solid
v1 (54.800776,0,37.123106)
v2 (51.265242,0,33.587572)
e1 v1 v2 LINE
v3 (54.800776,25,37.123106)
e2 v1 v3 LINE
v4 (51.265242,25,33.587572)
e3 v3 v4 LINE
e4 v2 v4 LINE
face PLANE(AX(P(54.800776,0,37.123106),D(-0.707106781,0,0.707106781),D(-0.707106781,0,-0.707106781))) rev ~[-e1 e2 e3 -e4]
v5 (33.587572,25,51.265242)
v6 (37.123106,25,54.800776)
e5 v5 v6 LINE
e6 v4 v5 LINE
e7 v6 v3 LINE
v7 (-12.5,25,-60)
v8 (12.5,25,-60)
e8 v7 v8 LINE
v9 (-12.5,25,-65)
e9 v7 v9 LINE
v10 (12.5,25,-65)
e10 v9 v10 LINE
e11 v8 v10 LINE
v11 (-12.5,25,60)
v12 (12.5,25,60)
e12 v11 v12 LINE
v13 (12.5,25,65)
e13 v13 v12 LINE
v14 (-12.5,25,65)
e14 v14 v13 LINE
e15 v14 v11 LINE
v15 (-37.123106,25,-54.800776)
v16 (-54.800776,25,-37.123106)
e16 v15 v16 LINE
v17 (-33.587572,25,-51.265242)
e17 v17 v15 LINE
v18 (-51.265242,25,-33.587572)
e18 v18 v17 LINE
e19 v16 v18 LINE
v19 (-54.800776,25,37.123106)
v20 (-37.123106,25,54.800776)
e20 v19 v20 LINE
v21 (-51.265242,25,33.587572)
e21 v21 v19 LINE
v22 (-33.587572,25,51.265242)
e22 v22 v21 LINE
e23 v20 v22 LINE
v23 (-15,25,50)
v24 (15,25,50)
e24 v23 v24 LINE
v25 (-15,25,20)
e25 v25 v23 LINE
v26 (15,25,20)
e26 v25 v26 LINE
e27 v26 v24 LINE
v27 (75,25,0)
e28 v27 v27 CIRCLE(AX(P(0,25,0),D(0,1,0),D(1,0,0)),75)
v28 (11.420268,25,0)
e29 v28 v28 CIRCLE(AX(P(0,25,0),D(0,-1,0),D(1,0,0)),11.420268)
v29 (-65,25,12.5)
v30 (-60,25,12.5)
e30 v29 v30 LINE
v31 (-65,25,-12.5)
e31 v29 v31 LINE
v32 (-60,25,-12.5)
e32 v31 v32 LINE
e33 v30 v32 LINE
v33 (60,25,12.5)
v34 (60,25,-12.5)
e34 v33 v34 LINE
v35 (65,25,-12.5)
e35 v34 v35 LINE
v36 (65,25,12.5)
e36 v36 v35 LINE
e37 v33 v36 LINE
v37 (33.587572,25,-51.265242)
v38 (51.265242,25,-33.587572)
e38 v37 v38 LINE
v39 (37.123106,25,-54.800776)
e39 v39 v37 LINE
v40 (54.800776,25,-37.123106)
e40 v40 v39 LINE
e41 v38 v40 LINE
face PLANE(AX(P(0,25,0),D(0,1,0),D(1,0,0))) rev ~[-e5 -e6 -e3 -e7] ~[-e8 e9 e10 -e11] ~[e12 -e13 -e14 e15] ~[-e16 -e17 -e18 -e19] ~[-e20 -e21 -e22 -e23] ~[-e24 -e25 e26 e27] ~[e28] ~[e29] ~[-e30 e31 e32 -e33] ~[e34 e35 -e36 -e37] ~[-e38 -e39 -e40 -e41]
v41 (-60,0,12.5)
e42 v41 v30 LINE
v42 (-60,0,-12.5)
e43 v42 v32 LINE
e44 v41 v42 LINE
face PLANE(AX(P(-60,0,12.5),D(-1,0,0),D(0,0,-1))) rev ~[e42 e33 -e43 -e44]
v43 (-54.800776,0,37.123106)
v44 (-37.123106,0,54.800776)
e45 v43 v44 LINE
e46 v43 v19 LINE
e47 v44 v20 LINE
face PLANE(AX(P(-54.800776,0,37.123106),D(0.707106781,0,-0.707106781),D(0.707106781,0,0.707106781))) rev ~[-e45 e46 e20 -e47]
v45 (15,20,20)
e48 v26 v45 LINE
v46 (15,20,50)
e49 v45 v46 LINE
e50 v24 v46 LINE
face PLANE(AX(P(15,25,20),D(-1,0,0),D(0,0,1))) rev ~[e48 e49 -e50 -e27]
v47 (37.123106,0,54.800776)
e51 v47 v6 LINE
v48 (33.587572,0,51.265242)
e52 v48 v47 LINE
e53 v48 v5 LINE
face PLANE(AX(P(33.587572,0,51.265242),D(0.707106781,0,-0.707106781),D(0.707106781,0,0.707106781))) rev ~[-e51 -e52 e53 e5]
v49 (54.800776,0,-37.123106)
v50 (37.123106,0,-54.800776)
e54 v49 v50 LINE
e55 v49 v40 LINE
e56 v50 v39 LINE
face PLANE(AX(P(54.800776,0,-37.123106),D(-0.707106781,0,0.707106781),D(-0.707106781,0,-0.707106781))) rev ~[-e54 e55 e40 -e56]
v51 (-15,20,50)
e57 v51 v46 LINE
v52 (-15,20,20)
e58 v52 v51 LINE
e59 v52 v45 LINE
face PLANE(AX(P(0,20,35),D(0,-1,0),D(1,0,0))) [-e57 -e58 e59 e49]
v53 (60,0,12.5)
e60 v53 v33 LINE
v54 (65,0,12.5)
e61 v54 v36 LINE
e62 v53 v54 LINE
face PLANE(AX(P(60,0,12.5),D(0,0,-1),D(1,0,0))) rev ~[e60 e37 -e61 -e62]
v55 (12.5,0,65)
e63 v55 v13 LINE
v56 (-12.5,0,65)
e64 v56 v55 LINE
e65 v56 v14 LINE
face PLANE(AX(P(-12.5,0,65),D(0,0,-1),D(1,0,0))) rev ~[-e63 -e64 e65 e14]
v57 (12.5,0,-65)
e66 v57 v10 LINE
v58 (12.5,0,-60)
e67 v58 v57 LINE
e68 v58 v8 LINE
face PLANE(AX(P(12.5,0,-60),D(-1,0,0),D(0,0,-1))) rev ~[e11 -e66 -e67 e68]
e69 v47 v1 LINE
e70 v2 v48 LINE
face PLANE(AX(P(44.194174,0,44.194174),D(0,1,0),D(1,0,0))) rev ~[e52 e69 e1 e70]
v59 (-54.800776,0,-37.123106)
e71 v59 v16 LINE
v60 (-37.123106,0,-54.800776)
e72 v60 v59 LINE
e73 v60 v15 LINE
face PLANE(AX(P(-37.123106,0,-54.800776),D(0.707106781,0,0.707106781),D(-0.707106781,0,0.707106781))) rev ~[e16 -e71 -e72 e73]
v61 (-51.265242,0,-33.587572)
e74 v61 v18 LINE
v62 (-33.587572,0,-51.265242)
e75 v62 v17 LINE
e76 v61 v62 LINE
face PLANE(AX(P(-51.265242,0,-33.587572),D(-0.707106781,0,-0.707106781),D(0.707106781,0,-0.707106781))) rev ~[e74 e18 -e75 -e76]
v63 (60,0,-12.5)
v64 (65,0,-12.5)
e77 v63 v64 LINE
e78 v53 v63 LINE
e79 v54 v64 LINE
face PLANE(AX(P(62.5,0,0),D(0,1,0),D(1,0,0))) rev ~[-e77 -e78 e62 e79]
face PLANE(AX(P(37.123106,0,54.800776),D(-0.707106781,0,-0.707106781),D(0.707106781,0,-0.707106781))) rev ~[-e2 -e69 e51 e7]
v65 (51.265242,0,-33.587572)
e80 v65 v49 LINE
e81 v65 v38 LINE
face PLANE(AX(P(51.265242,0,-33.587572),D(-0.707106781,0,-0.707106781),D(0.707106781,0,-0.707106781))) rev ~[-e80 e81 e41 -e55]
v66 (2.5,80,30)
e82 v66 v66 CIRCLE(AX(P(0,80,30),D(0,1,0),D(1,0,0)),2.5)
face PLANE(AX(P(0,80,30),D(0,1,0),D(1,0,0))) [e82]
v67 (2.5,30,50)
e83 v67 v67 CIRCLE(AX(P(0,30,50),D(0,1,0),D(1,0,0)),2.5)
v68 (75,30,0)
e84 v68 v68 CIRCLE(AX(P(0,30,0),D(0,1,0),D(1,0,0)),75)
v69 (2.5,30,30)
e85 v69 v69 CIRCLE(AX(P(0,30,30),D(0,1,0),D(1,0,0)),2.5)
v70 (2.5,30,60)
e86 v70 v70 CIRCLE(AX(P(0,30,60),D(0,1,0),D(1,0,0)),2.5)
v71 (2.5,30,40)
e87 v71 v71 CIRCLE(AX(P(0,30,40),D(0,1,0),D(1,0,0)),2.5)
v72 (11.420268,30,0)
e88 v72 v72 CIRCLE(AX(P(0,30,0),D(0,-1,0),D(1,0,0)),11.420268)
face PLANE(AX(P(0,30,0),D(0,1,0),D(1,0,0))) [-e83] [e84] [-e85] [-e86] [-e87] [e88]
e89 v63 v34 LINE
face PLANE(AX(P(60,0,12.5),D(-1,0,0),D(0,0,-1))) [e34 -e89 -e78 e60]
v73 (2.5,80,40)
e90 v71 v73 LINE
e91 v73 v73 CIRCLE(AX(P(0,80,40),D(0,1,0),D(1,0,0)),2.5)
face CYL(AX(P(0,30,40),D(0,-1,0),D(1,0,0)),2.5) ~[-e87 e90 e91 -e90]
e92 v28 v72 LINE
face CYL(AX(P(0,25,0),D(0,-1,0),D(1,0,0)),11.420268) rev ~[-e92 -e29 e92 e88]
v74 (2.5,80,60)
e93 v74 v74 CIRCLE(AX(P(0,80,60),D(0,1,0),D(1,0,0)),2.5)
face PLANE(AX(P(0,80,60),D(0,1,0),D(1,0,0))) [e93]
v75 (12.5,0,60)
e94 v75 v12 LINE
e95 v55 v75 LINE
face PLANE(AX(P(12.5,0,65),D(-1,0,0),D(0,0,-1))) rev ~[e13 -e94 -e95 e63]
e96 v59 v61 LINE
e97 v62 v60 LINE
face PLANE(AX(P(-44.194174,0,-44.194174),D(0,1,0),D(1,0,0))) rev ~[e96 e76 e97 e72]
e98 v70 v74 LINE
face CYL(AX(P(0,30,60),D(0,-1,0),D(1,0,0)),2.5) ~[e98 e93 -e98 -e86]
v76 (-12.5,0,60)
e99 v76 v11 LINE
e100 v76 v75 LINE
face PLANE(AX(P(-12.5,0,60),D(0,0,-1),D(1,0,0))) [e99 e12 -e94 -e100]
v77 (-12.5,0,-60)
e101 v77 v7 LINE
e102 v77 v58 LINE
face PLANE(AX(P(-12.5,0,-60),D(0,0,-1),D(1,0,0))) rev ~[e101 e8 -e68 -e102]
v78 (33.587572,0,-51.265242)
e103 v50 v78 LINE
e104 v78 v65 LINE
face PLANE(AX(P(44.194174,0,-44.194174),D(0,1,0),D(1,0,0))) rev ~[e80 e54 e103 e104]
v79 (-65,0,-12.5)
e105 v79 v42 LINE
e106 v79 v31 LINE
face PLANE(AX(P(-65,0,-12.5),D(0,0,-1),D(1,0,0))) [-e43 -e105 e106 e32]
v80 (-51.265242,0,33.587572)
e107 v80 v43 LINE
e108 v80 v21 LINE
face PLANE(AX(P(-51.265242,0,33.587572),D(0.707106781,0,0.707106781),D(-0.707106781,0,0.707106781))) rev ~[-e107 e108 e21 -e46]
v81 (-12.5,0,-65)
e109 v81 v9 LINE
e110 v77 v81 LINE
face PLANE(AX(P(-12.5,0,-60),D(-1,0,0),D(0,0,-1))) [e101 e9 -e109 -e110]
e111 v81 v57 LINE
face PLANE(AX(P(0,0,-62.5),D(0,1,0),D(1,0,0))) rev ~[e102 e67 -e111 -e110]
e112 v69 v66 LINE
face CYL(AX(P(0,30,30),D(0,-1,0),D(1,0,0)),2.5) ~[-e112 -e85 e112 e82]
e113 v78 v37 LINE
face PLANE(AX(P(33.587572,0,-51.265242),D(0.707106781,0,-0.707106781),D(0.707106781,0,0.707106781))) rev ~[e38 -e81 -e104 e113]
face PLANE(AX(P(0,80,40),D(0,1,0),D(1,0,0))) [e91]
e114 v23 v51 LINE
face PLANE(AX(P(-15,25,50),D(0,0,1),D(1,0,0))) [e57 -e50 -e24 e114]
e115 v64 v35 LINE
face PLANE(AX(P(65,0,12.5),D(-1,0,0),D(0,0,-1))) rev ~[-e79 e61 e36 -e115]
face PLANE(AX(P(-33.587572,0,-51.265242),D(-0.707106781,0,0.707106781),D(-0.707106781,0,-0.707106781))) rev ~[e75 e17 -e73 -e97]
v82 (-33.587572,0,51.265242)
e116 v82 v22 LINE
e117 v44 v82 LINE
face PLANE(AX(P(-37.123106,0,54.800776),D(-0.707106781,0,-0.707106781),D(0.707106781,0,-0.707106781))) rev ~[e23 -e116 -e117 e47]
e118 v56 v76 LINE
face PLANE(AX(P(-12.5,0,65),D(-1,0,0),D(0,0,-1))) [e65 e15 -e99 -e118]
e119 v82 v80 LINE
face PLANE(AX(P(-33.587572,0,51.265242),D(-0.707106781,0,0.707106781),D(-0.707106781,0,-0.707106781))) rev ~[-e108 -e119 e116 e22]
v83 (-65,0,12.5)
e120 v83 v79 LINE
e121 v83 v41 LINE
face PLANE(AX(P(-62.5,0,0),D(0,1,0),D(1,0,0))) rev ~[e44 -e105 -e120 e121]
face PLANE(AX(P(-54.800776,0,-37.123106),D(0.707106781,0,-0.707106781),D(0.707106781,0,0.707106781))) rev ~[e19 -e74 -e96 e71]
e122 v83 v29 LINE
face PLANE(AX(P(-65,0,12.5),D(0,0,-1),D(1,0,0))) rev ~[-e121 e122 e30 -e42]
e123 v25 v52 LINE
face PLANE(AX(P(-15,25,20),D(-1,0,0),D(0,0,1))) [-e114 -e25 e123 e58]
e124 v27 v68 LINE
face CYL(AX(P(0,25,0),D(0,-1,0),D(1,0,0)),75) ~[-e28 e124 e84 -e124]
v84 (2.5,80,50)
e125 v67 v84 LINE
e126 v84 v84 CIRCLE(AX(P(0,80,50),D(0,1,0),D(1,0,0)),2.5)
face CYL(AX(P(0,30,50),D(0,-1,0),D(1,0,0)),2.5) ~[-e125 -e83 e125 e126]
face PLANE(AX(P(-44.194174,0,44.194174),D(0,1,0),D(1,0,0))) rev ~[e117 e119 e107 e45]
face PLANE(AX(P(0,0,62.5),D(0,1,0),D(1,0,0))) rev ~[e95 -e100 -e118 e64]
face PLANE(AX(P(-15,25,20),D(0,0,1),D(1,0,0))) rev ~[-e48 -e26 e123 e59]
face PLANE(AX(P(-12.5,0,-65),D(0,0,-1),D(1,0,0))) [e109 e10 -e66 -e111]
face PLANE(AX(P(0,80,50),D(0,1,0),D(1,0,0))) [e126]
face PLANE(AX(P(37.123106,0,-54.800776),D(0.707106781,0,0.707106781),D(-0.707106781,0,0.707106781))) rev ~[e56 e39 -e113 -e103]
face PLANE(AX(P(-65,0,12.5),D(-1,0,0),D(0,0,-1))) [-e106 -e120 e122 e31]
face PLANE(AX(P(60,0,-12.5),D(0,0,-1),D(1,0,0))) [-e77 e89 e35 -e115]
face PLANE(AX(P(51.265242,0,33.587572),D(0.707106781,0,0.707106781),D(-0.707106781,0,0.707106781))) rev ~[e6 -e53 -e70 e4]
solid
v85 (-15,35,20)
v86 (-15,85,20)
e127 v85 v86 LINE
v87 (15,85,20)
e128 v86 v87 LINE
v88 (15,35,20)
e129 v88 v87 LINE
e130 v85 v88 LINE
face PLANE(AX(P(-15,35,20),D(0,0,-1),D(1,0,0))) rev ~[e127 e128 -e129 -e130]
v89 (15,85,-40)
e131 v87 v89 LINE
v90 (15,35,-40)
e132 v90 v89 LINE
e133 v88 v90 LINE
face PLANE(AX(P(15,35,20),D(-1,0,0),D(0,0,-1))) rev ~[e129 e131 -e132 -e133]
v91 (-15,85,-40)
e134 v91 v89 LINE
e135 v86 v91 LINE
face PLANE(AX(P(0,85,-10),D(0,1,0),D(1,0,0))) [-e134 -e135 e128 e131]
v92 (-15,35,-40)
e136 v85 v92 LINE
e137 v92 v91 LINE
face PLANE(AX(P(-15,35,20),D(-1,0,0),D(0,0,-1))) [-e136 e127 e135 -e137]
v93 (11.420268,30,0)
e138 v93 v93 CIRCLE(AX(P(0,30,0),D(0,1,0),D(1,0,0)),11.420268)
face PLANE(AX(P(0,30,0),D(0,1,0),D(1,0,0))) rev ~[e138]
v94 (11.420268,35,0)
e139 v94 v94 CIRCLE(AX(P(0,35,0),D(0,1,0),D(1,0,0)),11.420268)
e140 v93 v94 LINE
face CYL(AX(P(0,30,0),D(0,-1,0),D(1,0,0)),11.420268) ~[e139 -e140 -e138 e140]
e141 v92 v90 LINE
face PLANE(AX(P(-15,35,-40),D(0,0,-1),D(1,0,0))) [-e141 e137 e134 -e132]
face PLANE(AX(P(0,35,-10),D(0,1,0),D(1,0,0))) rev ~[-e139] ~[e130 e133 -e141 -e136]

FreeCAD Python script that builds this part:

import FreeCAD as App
import Part
import Sketcher
from FreeCAD import Vector
Q = App.Units.Quantity


def add_polygon(sketch, points):
    """Adds a closed chain of lines whose ends are joined by coincident constraints."""
    first, n = sketch.GeometryCount, len(points)
    for a, b in zip(points, points[1:] + points[:1]):
        sketch.addGeometry(Part.LineSegment(App.Vector(*a, 0), App.Vector(*b, 0)), False)
    for i in range(n):
        sketch.addConstraint(Sketcher.Constraint("Coincident", first + i, 2, first + (i + 1) % n, 1))

doc = App.newDocument("Part")
body = doc.addObject("PartDesign::Body", "Body")

sketch1 = body.newObject("Sketcher::SketchObject", "Sketch")
sketch1.AttachmentSupport = (doc.getObject("XZ_Plane"), [""])
sketch1.MapMode = "FlatFace"
add_polygon(sketch1, [(-37, 55), (-34, 51), (-51, 34), (-55, 37)])
sketch1.addConstraint([
    Sketcher.Constraint("Perpendicular", 0, 1),
    Sketcher.Constraint("Perpendicular", 1, 2),
    Sketcher.Constraint("Perpendicular", 2, 3),
    Sketcher.Constraint("Angle", 0, Q("-45 deg")),
    Sketcher.Constraint("Distance", 0, 5.0),
    Sketcher.Constraint("Distance", 1, 25.0),
    Sketcher.Constraint("DistanceY", -1, 1, 0, 2, 51.265242),
    Sketcher.Constraint("DistanceX", 1, 2, -1, 1, 51.265242),
])
pad1 = body.newObject("PartDesign::Pad", "Pad")
pad1.Profile = sketch1
pad1.Length = 25
pad1.Reversed = True
body2 = doc.addObject("PartDesign::Body", "Body001")

sketch2 = body2.newObject("Sketcher::SketchObject", "Sketch001")
sketch2.AttachmentSupport = (doc.getObject("XZ_Plane001"), [""])
sketch2.MapMode = "FlatFace"
add_polygon(sketch2, [(-55, -37), (-51, -34), (-34, -51), (-37, -55)])
sketch2.addConstraint([
    Sketcher.Constraint("Perpendicular", 0, 1),
    Sketcher.Constraint("Perpendicular", 1, 2),
    Sketcher.Constraint("Perpendicular", 2, 3),
    Sketcher.Constraint("Angle", 0, Q("45 deg")),
    Sketcher.Constraint("Distance", 0, 5.0),
    Sketcher.Constraint("Distance", 1, 25.0),
    Sketcher.Constraint("DistanceX", 0, 2, -1, 1, 51.265242),
    Sketcher.Constraint("DistanceY", 1, 2, -1, 1, 51.265242),
])
pad2 = body2.newObject("PartDesign::Pad", "Pad001")
pad2.Profile = sketch2
pad2.Length = 25
pad2.Reversed = True
body3 = doc.addObject("PartDesign::Body", "Body002")

sketch3 = body3.newObject("Sketcher::SketchObject", "Sketch002")
sketch3.AttachmentSupport = (doc.getObject("XZ_Plane002"), [""])
sketch3.MapMode = "FlatFace"
add_polygon(sketch3, [(-12, -65), (-12, -60), (12, -60), (12, -65)])
sketch3.addConstraint([
    Sketcher.Constraint("Vertical", 0),
    Sketcher.Constraint("Horizontal", 1),
    Sketcher.Constraint("Vertical", 2),
    Sketcher.Constraint("Horizontal", 3),
    Sketcher.Constraint("DistanceX", 1, 1, 1, 2, 25.0),
    Sketcher.Constraint("DistanceY", 0, 1, 0, 2, 5.0),
    Sketcher.Constraint("DistanceY", 0, 2, -1, 1, 60.0),
    Sketcher.Constraint("DistanceX", 0, 2, -1, 1, 12.5),
])
pad3 = body3.newObject("PartDesign::Pad", "Pad002")
pad3.Profile = sketch3
pad3.Length = 25
pad3.Reversed = True
body4 = doc.addObject("PartDesign::Body", "Body003")

sketch4 = body4.newObject("Sketcher::SketchObject", "Sketch003")
sketch4.AttachmentSupport = (doc.getObject("XZ_Plane003"), [""])
sketch4.MapMode = "FlatFace"
add_polygon(sketch4, [(37, -55), (34, -51), (51, -34), (55, -37)])
sketch4.addConstraint([
    Sketcher.Constraint("Perpendicular", 0, 1),
    Sketcher.Constraint("Perpendicular", 1, 2),
    Sketcher.Constraint("Perpendicular", 2, 3),
    Sketcher.Constraint("Angle", 0, Q("135 deg")),
    Sketcher.Constraint("Distance", 0, 5.0),
    Sketcher.Constraint("Distance", 1, 25.0),
    Sketcher.Constraint("DistanceY", 0, 2, -1, 1, 51.265242),
    Sketcher.Constraint("DistanceX", -1, 1, 1, 2, 51.265242),
])
pad4 = body4.newObject("PartDesign::Pad", "Pad003")
pad4.Profile = sketch4
pad4.Length = 25
pad4.Reversed = True
body5 = doc.addObject("PartDesign::Body", "Body004")

sketch5 = body5.newObject("Sketcher::SketchObject", "Sketch004")
sketch5.AttachmentSupport = (doc.getObject("XZ_Plane004"), [""])
sketch5.MapMode = "FlatFace"
add_polygon(sketch5, [(60, -12), (60, 12), (65, 12), (65, -12)])
sketch5.addConstraint([
    Sketcher.Constraint("Vertical", 0),
    Sketcher.Constraint("Horizontal", 1),
    Sketcher.Constraint("Vertical", 2),
    Sketcher.Constraint("Horizontal", 3),
    Sketcher.Constraint("DistanceX", 1, 1, 1, 2, 5.0),
    Sketcher.Constraint("DistanceY", 0, 1, 0, 2, 25.0),
    Sketcher.Constraint("DistanceX", -1, 1, 0, 2, 60.0),
    Sketcher.Constraint("DistanceY", -1, 1, 0, 2, 12.5),
])
pad5 = body5.newObject("PartDesign::Pad", "Pad004")
pad5.Profile = sketch5
pad5.Length = 25
pad5.Reversed = True
body6 = doc.addObject("PartDesign::Body", "Body005")

sketch6 = body6.newObject("Sketcher::SketchObject", "Sketch005")
sketch6.AttachmentSupport = (doc.getObject("XZ_Plane005"), [""])
sketch6.MapMode = "FlatFace"
add_polygon(sketch6, [(55, 37), (51, 34), (34, 51), (37, 55)])
sketch6.addConstraint([
    Sketcher.Constraint("Perpendicular", 0, 1),
    Sketcher.Constraint("Perpendicular", 1, 2),
    Sketcher.Constraint("Perpendicular", 2, 3),
    Sketcher.Constraint("Angle", 0, Q("-135 deg")),
    Sketcher.Constraint("Distance", 0, 5.0),
    Sketcher.Constraint("Distance", 1, 25.0),
    Sketcher.Constraint("DistanceX", -1, 1, 0, 2, 51.265242),
    Sketcher.Constraint("DistanceY", -1, 1, 1, 2, 51.265242),
])
pad6 = body6.newObject("PartDesign::Pad", "Pad005")
pad6.Profile = sketch6
pad6.Length = 25
pad6.Reversed = True
body7 = doc.addObject("PartDesign::Body", "Body006")

sketch7 = body7.newObject("Sketcher::SketchObject", "Sketch006")
sketch7.AttachmentSupport = (doc.getObject("XZ_Plane006"), [""])
sketch7.MapMode = "FlatFace"
add_polygon(sketch7, [(-12, 60), (-12, 65), (12, 65), (12, 60)])
sketch7.addConstraint([
    Sketcher.Constraint("Vertical", 0),
    Sketcher.Constraint("Horizontal", 1),
    Sketcher.Constraint("Vertical", 2),
    Sketcher.Constraint("Horizontal", 3),
    Sketcher.Constraint("DistanceX", 1, 1, 1, 2, 25.0),
    Sketcher.Constraint("DistanceY", 0, 1, 0, 2, 5.0),
    Sketcher.Constraint("DistanceY", -1, 1, 0, 2, 65.0),
    Sketcher.Constraint("DistanceX", 0, 2, -1, 1, 12.5),
])
pad7 = body7.newObject("PartDesign::Pad", "Pad006")
pad7.Profile = sketch7
pad7.Length = 25
pad7.Reversed = True
body8 = doc.addObject("PartDesign::Body", "Body007")

sketch8 = body8.newObject("Sketcher::SketchObject", "Sketch007")
sketch8.AttachmentSupport = (doc.getObject("XZ_Plane007"), [""])
sketch8.MapMode = "FlatFace"
add_polygon(sketch8, [(-65, -12), (-65, 12), (-60, 12), (-60, -12)])
sketch8.addConstraint([
    Sketcher.Constraint("Vertical", 0),
    Sketcher.Constraint("Horizontal", 1),
    Sketcher.Constraint("Vertical", 2),
    Sketcher.Constraint("Horizontal", 3),
    Sketcher.Constraint("DistanceX", 1, 1, 1, 2, 5.0),
    Sketcher.Constraint("DistanceY", 0, 1, 0, 2, 25.0),
    Sketcher.Constraint("DistanceX", 0, 2, -1, 1, 65.0),
    Sketcher.Constraint("DistanceY", -1, 1, 0, 2, 12.5),
])
pad8 = body8.newObject("PartDesign::Pad", "Pad007")
pad8.Profile = sketch8
pad8.Length = 25
pad8.Reversed = True
body.AllowCompound = True
doc.recompute()

boolean = body.newObject("PartDesign::Boolean", "Boolean")
boolean.Type = "Fuse"
boolean.addObjects([body2])
doc.recompute()

boolean2 = body.newObject("PartDesign::Boolean", "Boolean001")
boolean2.Type = "Fuse"
boolean2.addObjects([body3])
doc.recompute()

boolean3 = body.newObject("PartDesign::Boolean", "Boolean002")
boolean3.Type = "Fuse"
boolean3.addObjects([body4])
doc.recompute()

boolean4 = body.newObject("PartDesign::Boolean", "Boolean003")
boolean4.Type = "Fuse"
boolean4.addObjects([body5])
doc.recompute()

boolean5 = body.newObject("PartDesign::Boolean", "Boolean004")
boolean5.Type = "Fuse"
boolean5.addObjects([body6])
doc.recompute()

boolean6 = body.newObject("PartDesign::Boolean", "Boolean005")
boolean6.Type = "Fuse"
boolean6.addObjects([body7])
doc.recompute()

boolean7 = body.newObject("PartDesign::Boolean", "Boolean006")
boolean7.Type = "Fuse"
boolean7.addObjects([body8])

sketch9 = body.newObject("Sketcher::SketchObject", "Sketch008")
sketch9.AttachmentSupport = (doc.getObject("XZ_Plane"), [""])
sketch9.MapMode = "FlatFace"
sketch9.AttachmentOffset = App.Placement(Vector(0, 0, -25), App.Rotation())
sketch9.addGeometry(Part.Circle(Vector(0, 0, 0), Vector(0, 0, 1), 75), False)
sketch9.addConstraint([
    Sketcher.Constraint("Coincident", 0, 3, -1, 1),
    Sketcher.Constraint("Diameter", 0, 150.0),
])
pad9 = body.newObject("PartDesign::Pad", "Pad008")
pad9.Profile = sketch9
pad9.Length = 5
pad9.Reversed = True

sketch10 = body.newObject("Sketcher::SketchObject", "Sketch009")
sketch10.AttachmentSupport = (doc.getObject("XZ_Plane"), [""])
sketch10.MapMode = "FlatFace"
sketch10.AttachmentOffset = App.Placement(Vector(0, 0, -25), App.Rotation())
add_polygon(sketch10, [(-15, 50), (-15, 20), (15, 20), (15, 50)])
sketch10.addConstraint([
    Sketcher.Constraint("Vertical", 0),
    Sketcher.Constraint("Horizontal", 1),
    Sketcher.Constraint("Vertical", 2),
    Sketcher.Constraint("Horizontal", 3),
    Sketcher.Constraint("Equal", 3, 0),
    Sketcher.Constraint("DistanceX", 1, 1, 1, 2, 30.0),
    Sketcher.Constraint("DistanceX", 0, 2, -1, 1, 15.0),
    Sketcher.Constraint("DistanceY", -1, 1, 0, 2, 20.0),
])
pad10 = body.newObject("PartDesign::Pad", "Pad009")
pad10.Profile = sketch10
pad10.Length = 5

sketch11 = body.newObject("Sketcher::SketchObject", "Sketch010")
sketch11.AttachmentSupport = (doc.getObject("XZ_Plane"), [""])
sketch11.MapMode = "FlatFace"
sketch11.AttachmentOffset = App.Placement(Vector(0, 0, -25), App.Rotation())
sketch11.addGeometry(Part.Circle(Vector(0, 0, 0), Vector(0, 0, 1), 11), False)
sketch11.addConstraint([
    Sketcher.Constraint("Coincident", 0, 3, -1, 1),
    Sketcher.Constraint("Diameter", 0, 22.840537),
])
pocket1 = body.newObject("PartDesign::Pocket", "Pocket")
pocket1.Profile = sketch11
pocket1.Length = 5

sketch12 = body.newObject("Sketcher::SketchObject", "Sketch011")
sketch12.AttachmentSupport = (doc.getObject("XZ_Plane"), [""])
sketch12.MapMode = "FlatFace"
sketch12.AttachmentOffset = App.Placement(Vector(0, 0, -30), App.Rotation())
sketch12.addGeometry([
    Part.Circle(Vector(0, 30, 0), Vector(0, 0, 1), 2.5),
    Part.Circle(Vector(0, 40, 0), Vector(0, 0, 1), 2.5),
    Part.Circle(Vector(0, 50, 0), Vector(0, 0, 1), 2.5),
    Part.Circle(Vector(0, 60, 0), Vector(0, 0, 1), 2.5),
], False)
sketch12.addConstraint([
    Sketcher.Constraint("Equal", 0, 1),
    Sketcher.Constraint("Equal", 1, 2),
    Sketcher.Constraint("Equal", 2, 3),
    Sketcher.Constraint("PointOnObject", 0, 3, -2),
    Sketcher.Constraint("PointOnObject", 1, 3, -2),
    Sketcher.Constraint("PointOnObject", 2, 3, -2),
    Sketcher.Constraint("PointOnObject", 3, 3, -2),
    Sketcher.Constraint("Diameter", 0, 5.0),
    Sketcher.Constraint("DistanceY", -1, 1, 0, 3, 30.0),
    Sketcher.Constraint("DistanceY", -1, 1, 1, 3, 40.0),
    Sketcher.Constraint("DistanceY", -1, 1, 2, 3, 50.0),
    Sketcher.Constraint("DistanceY", -1, 1, 3, 3, 60.0),
])
pad11 = body.newObject("PartDesign::Pad", "Pad010")
pad11.Profile = sketch12
pad11.Length = 50
pad11.Reversed = True
body9 = doc.addObject("PartDesign::Body", "Body008")

sketch13 = body9.newObject("Sketcher::SketchObject", "Sketch012")
sketch13.AttachmentSupport = (doc.getObject("XZ_Plane008"), [""])
sketch13.MapMode = "FlatFace"
sketch13.AttachmentOffset = App.Placement(Vector(0, 0, -30), App.Rotation())
sketch13.addGeometry(Part.Circle(Vector(0, 0, 0), Vector(0, 0, 1), 11), False)
sketch13.addConstraint([
    Sketcher.Constraint("Coincident", 0, 3, -1, 1),
    Sketcher.Constraint("Diameter", 0, 22.840537),
])
pad12 = body9.newObject("PartDesign::Pad", "Pad011")
pad12.Profile = sketch13
pad12.Length = 5
pad12.Reversed = True

sketch14 = body9.newObject("Sketcher::SketchObject", "Sketch013")
sketch14.AttachmentSupport = (doc.getObject("XZ_Plane008"), [""])
sketch14.MapMode = "FlatFace"
sketch14.AttachmentOffset = App.Placement(Vector(0, 0, -35), App.Rotation())
add_polygon(sketch14, [(-15, -40), (-15, 20), (15, 20), (15, -40)])
sketch14.addConstraint([
    Sketcher.Constraint("Vertical", 0),
    Sketcher.Constraint("Horizontal", 1),
    Sketcher.Constraint("Vertical", 2),
    Sketcher.Constraint("Horizontal", 3),
    Sketcher.Constraint("DistanceX", 1, 1, 1, 2, 30.0),
    Sketcher.Constraint("DistanceY", 0, 1, 0, 2, 60.0),
    Sketcher.Constraint("DistanceX", 0, 2, -1, 1, 15.0),
    Sketcher.Constraint("DistanceY", -1, 1, 0, 2, 20.0),
])
pad13 = body9.newObject("PartDesign::Pad", "Pad012")
pad13.Profile = sketch14
pad13.Length = 50
pad13.Reversed = True

doc.recompute()
